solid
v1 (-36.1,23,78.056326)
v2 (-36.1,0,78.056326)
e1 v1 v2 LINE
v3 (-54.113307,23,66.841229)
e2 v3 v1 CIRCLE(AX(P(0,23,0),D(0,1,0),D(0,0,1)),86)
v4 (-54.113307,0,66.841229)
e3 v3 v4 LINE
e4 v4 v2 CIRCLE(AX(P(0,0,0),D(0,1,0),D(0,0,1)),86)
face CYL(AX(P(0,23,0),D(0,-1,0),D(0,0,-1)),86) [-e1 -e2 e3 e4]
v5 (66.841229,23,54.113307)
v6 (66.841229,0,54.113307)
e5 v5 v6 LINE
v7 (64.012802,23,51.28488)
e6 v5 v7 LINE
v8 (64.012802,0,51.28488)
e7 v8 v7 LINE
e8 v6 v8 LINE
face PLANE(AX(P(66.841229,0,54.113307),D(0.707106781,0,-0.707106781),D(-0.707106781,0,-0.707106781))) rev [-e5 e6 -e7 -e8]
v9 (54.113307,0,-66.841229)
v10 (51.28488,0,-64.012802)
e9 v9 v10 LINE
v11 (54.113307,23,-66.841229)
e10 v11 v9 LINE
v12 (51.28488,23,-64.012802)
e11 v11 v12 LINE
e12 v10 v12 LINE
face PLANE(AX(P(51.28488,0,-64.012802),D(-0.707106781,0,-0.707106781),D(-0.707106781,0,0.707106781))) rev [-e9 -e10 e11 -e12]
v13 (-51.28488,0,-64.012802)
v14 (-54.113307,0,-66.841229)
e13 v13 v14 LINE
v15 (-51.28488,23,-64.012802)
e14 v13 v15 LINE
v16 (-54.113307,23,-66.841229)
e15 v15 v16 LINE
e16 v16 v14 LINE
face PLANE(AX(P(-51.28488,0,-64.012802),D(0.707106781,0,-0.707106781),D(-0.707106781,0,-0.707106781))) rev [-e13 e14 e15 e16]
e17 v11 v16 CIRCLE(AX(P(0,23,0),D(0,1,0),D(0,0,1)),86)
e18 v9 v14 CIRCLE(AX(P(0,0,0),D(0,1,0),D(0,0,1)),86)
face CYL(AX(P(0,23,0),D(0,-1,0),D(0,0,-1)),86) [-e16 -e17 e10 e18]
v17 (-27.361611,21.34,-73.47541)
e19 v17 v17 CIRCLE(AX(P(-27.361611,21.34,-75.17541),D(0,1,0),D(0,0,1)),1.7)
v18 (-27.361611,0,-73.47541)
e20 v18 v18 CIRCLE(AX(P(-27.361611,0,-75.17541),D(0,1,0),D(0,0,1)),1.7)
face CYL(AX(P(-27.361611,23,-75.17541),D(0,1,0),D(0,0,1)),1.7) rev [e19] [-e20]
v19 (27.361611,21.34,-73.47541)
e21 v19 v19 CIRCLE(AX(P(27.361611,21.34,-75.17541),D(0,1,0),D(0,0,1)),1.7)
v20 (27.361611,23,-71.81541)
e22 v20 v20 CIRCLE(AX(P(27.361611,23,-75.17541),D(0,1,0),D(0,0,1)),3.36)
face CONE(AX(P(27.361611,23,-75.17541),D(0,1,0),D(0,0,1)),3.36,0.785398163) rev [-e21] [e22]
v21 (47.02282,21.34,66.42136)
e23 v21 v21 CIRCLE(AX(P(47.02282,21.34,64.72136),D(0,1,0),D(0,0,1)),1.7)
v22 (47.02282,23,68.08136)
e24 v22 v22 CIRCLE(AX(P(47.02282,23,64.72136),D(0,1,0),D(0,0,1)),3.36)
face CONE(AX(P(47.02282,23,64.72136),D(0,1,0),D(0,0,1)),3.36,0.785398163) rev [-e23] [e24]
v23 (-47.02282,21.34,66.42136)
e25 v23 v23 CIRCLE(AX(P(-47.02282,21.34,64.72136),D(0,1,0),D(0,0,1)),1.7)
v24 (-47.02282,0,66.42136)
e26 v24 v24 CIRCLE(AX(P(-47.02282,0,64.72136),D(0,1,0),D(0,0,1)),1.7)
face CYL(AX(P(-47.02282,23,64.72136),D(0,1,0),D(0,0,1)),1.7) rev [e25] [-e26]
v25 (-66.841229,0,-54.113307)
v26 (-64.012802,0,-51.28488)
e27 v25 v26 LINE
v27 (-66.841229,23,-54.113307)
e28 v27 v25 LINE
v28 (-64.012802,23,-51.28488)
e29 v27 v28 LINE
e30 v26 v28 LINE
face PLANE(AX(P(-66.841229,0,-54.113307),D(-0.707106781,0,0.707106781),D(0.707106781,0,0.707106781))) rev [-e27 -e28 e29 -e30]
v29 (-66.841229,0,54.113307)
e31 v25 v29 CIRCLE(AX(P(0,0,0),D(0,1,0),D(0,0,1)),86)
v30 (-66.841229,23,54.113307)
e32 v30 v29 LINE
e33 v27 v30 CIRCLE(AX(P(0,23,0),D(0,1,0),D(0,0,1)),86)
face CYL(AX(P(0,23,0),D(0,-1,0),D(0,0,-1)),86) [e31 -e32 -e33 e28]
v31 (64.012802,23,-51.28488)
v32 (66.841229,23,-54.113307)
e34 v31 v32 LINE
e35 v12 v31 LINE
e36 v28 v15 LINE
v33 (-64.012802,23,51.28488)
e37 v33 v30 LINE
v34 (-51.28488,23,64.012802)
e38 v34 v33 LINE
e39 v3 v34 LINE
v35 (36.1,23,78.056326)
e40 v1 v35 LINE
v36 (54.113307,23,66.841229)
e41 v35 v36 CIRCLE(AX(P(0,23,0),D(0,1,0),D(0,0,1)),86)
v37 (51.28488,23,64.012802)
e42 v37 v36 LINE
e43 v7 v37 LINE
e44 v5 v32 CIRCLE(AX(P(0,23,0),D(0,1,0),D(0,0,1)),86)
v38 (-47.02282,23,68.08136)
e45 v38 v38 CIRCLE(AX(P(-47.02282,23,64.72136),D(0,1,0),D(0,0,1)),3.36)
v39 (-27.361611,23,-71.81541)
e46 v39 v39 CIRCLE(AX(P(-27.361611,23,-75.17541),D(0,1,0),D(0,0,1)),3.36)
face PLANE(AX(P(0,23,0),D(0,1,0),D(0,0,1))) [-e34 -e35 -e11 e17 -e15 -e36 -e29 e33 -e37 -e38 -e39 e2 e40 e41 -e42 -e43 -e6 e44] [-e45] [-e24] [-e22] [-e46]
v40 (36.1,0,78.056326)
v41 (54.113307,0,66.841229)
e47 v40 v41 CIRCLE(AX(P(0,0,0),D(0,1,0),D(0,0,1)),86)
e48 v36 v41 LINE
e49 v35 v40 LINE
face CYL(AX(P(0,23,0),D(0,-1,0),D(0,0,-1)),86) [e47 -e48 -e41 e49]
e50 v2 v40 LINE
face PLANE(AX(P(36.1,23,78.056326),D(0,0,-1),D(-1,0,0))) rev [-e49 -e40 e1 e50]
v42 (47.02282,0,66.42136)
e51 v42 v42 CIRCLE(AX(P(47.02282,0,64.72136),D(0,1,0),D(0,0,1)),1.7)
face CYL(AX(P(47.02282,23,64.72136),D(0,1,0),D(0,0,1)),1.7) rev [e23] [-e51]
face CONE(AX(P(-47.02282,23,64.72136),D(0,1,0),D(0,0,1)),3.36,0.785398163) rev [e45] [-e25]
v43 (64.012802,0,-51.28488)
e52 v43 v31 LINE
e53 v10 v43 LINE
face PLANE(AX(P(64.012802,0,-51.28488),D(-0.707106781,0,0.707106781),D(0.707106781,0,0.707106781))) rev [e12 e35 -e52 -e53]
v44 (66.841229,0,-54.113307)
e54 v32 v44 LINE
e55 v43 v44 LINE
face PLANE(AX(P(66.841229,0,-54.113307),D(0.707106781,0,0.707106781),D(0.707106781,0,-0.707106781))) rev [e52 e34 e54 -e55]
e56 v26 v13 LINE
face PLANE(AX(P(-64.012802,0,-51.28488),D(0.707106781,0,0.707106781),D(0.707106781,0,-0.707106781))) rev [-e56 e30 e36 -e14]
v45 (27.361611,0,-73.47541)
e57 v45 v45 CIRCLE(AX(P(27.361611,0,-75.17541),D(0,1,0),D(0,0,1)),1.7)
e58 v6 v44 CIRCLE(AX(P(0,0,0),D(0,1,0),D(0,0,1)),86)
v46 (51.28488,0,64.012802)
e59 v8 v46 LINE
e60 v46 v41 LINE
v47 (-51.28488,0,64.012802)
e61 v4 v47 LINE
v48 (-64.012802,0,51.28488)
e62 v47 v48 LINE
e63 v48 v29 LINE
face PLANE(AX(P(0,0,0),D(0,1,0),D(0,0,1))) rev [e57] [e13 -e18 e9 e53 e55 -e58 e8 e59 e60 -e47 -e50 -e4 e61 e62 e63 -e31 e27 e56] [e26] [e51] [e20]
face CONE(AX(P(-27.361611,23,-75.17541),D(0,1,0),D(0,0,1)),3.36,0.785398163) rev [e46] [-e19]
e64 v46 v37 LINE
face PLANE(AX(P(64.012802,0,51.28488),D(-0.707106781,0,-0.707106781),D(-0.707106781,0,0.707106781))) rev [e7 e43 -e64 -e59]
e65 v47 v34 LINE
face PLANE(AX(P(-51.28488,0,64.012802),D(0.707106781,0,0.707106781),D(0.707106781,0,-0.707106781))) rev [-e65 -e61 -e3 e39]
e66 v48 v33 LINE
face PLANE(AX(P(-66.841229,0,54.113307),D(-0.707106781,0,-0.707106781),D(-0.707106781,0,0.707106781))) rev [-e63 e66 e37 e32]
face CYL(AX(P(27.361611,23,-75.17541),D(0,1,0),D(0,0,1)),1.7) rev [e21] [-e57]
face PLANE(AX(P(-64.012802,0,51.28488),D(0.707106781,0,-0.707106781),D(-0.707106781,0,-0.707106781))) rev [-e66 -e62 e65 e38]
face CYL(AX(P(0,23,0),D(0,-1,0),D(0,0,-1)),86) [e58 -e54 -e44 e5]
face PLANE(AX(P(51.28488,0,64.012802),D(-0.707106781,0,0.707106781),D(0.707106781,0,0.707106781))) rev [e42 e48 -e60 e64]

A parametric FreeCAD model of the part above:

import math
import FreeCAD as App
import Part
import Sketcher

V = App.Vector
Q = App.Units.Quantity

doc = App.newDocument("Part")
body = doc.addObject("PartDesign::Body", "Body")

sketch1 = doc.addObject("Sketcher::SketchObject", "Sketch")
body.addObject(sketch1)
sketch1.AttachmentSupport = (doc.XZ_Plane, [""])
sketch1.MapMode = "FlatFace"
sketch1.addGeometry(Part.LineSegment(V(-36, 78, 0), V(36, 78, 0)), False)
sketch1.addGeometry(Part.ArcOfCircle(Part.Circle(V(0, 0, 0), V(0, 0, 1), 86), math.radians(51.01), math.radians(65.18)), False)
sketch1.addGeometry(Part.LineSegment(V(54, 67, 0), V(67, 54, 0)), False)
sketch1.addGeometry(Part.ArcOfCircle(Part.Circle(V(0, 0, 0), V(0, 0, 1), 86), math.radians(-39), math.radians(39)), False)
sketch1.addGeometry(Part.LineSegment(V(67, -54, 0), V(54, -67, 0)), False)
sketch1.addGeometry(Part.ArcOfCircle(Part.Circle(V(0, 0, 0), V(0, 0, 1), 86), math.radians(-129), math.radians(-51)), False)
sketch1.addGeometry(Part.LineSegment(V(-54, -67, 0), V(-67, -54, 0)), False)
sketch1.addGeometry(Part.ArcOfCircle(Part.Circle(V(0, 0, 0), V(0, 0, 1), 86), math.radians(141), math.radians(219)), False)
sketch1.addGeometry(Part.LineSegment(V(-67, 54, 0), V(-54, 67, 0)), False)
sketch1.addGeometry(Part.ArcOfCircle(Part.Circle(V(0, 0, 0), V(0, 0, 1), 86), math.radians(114.82), math.radians(128.99)), False)
sketch1.addConstraint(Sketcher.Constraint("Coincident", 0, 2, 1, 2))
sketch1.addConstraint(Sketcher.Constraint("Coincident", 1, 1, 2, 1))
sketch1.addConstraint(Sketcher.Constraint("Coincident", 2, 2, 3, 2))
sketch1.addConstraint(Sketcher.Constraint("Coincident", 3, 1, 4, 1))
sketch1.addConstraint(Sketcher.Constraint("Coincident", 4, 2, 5, 2))
sketch1.addConstraint(Sketcher.Constraint("Coincident", 5, 1, 6, 1))
sketch1.addConstraint(Sketcher.Constraint("Coincident", 6, 2, 7, 2))
sketch1.addConstraint(Sketcher.Constraint("Coincident", 7, 1, 8, 1))
sketch1.addConstraint(Sketcher.Constraint("Coincident", 8, 2, 9, 2))
sketch1.addConstraint(Sketcher.Constraint("Coincident", 9, 1, 0, 1))
sketch1.addConstraint(Sketcher.Constraint("Horizontal", 0))
sketch1.addConstraint(Sketcher.Constraint("Coincident", 1, 3, -1, 1))
sketch1.addConstraint(Sketcher.Constraint("Coincident", 3, 3, -1, 1))
sketch1.addConstraint(Sketcher.Constraint("Coincident", 5, 3, -1, 1))
sketch1.addConstraint(Sketcher.Constraint("Coincident", 7, 3, -1, 1))
sketch1.addConstraint(Sketcher.Constraint("Coincident", 9, 3, -1, 1))
sketch1.addConstraint(Sketcher.Constraint("Equal", 1, 3))
sketch1.addConstraint(Sketcher.Constraint("Equal", 3, 5))
sketch1.addConstraint(Sketcher.Constraint("Equal", 5, 7))
sketch1.addConstraint(Sketcher.Constraint("Equal", 7, 9))
sketch1.addConstraint(Sketcher.Constraint("Perpendicular", 2, 4))
sketch1.addConstraint(Sketcher.Constraint("Perpendicular", 4, 6))
sketch1.addConstraint(Sketcher.Constraint("Perpendicular", 6, 8))
sketch1.addConstraint(Sketcher.Constraint("Horizontal", 4, 2, 5, 1))
sketch1.addConstraint(Sketcher.Constraint("Horizontal", 3, 1, 6, 2))
sketch1.addConstraint(Sketcher.Constraint("Horizontal", 2, 2, 7, 1))
sketch1.addConstraint(Sketcher.Constraint("Vertical", 2, 2, 3, 1))
sketch1.addConstraint(Sketcher.Constraint("Radius", 1, Q("86 mm")))
sketch1.addConstraint(Sketcher.Constraint("Distance", 2, Q("18 mm")))
sketch1.addConstraint(Sketcher.Constraint("DistanceX", 0, 1, 0, 2, Q("72.2 mm")))
pad1 = doc.addObject("PartDesign::Pad", "Pad")
body.addObject(pad1)
pad1.Profile = sketch1
pad1.Length = 23
pad1.Reversed = True

sketch2 = doc.addObject("Sketcher::SketchObject", "Sketch001")
body.addObject(sketch2)
sketch2.AttachmentSupport = (doc.XZ_Plane, [""])
sketch2.MapMode = "FlatFace"
sketch2.AttachmentOffset = App.Placement(V(0, 0, -23), App.Rotation())
sketch2.addGeometry(Part.Circle(V(47, 64.7, 0), V(0, 0, 1), 1.7), False)
sketch2.addGeometry(Part.Circle(V(27.4, -75.2, 0), V(0, 0, 1), 1.7), False)
sketch2.addGeometry(Part.Circle(V(-47, 64.7, 0), V(0, 0, 1), 1.7), False)
sketch2.addGeometry(Part.Circle(V(-27.4, -75.2, 0), V(0, 0, 1), 1.7), False)
sketch2.addConstraint(Sketcher.Constraint("Equal", 0, 1))
sketch2.addConstraint(Sketcher.Constraint("Equal", 1, 2))
sketch2.addConstraint(Sketcher.Constraint("Equal", 2, 3))
sketch2.addConstraint(Sketcher.Constraint("Symmetric", 0, 3, 2, 3, -2))
sketch2.addConstraint(Sketcher.Constraint("Symmetric", 1, 3, 3, 3, -2))
sketch2.addConstraint(Sketcher.Constraint("Diameter", 0, Q("3.4 mm")))
sketch2.addConstraint(Sketcher.Constraint("DistanceX", -1, 1, 0, 3, Q("47.02282 mm")))
sketch2.addConstraint(Sketcher.Constraint("DistanceY", -1, 1, 0, 3, Q("64.72136 mm")))
sketch2.addConstraint(Sketcher.Constraint("DistanceX", -1, 1, 1, 3, Q("27.361611 mm")))
sketch2.addConstraint(Sketcher.Constraint("DistanceY", 1, 3, -1, 1, Q("75.17541 mm")))
doc.recompute()
hole = doc.addObject("PartDesign::Hole", "Hole")
body.addObject(hole)
hole.Profile = sketch2
hole.ThreadType = "None"
hole.Diameter = 3.4
hole.DepthType = "ThroughAll"
hole.HoleCutType = "Countersink"
hole.HoleCutDiameter = 6.72
hole.HoleCutCountersinkAngle = 90
hole.Reversed = True

sketch3 = doc.addObject("Sketcher::SketchObject", "Sketch002")
body.addObject(sketch3)
sketch3.AttachmentSupport = (doc.XZ_Plane, [""])
sketch3.MapMode = "FlatFace"
sketch3.AttachmentOffset = App.Placement(V(0, 0, -23), App.Rotation())
sketch3.addGeometry(Part.LineSegment(V(-64, 51.3, 0), V(-66.8, 54.1, 0)), False)
sketch3.addGeometry(Part.LineSegment(V(-66.8, 54.1, 0), V(-54.1, 66.8, 0)), False)
sketch3.addGeometry(Part.LineSegment(V(-54.1, 66.8, 0), V(-51.3, 64, 0)), False)
sketch3.addGeometry(Part.LineSegment(V(-51.3, 64, 0), V(-64, 51.3, 0)), False)
sketch3.addGeometry(Part.LineSegment(V(-66.8, -54.1, 0), V(-64, -51.3, 0)), False)
sketch3.addGeometry(Part.LineSegment(V(-64, -51.3, 0), V(-51.3, -64, 0)), False)
sketch3.addGeometry(Part.LineSegment(V(-51.3, -64, 0), V(-54.1, -66.8, 0)), False)
sketch3.addGeometry(Part.LineSegment(V(-54.1, -66.8, 0), V(-66.8, -54.1, 0)), False)
sketch3.addGeometry(Part.LineSegment(V(66.8, 54.1, 0), V(64, 51.3, 0)), False)
sketch3.addGeometry(Part.LineSegment(V(64, 51.3, 0), V(51.3, 64, 0)), False)
sketch3.addGeometry(Part.LineSegment(V(51.3, 64, 0), V(54.1, 66.8, 0)), False)
sketch3.addGeometry(Part.LineSegment(V(54.1, 66.8, 0), V(66.8, 54.1, 0)), False)
sketch3.addGeometry(Part.LineSegment(V(66.8, -54.1, 0), V(54.1, -66.8, 0)), False)
sketch3.addGeometry(Part.LineSegment(V(54.1, -66.8, 0), V(51.3, -64, 0)), False)
sketch3.addGeometry(Part.LineSegment(V(51.3, -64, 0), V(64, -51.3, 0)), False)
sketch3.addGeometry(Part.LineSegment(V(64, -51.3, 0), V(66.8, -54.1, 0)), False)
sketch3.addConstraint(Sketcher.Constraint("Coincident", 0, 2, 1, 1))
sketch3.addConstraint(Sketcher.Constraint("Coincident", 1, 2, 2, 1))
sketch3.addConstraint(Sketcher.Constraint("Coincident", 2, 2, 3, 1))
sketch3.addConstraint(Sketcher.Constraint("Coincident", 3, 2, 0, 1))
sketch3.addConstraint(Sketcher.Constraint("Coincident", 4, 2, 5, 1))
sketch3.addConstraint(Sketcher.Constraint("Coincident", 5, 2, 6, 1))
sketch3.addConstraint(Sketcher.Constraint("Coincident", 6, 2, 7, 1))
sketch3.addConstraint(Sketcher.Constraint("Coincident", 7, 2, 4, 1))
sketch3.addConstraint(Sketcher.Constraint("Coincident", 8, 2, 9, 1))
sketch3.addConstraint(Sketcher.Constraint("Coincident", 9, 2, 10, 1))
sketch3.addConstraint(Sketcher.Constraint("Coincident", 10, 2, 11, 1))
sketch3.addConstraint(Sketcher.Constraint("Coincident", 11, 2, 8, 1))
sketch3.addConstraint(Sketcher.Constraint("Coincident", 12, 2, 13, 1))
sketch3.addConstraint(Sketcher.Constraint("Coincident", 13, 2, 14, 1))
sketch3.addConstraint(Sketcher.Constraint("Coincident", 14, 2, 15, 1))
sketch3.addConstraint(Sketcher.Constraint("Coincident", 15, 2, 12, 1))
sketch3.addConstraint(Sketcher.Constraint("Symmetric", 4, 2, 8, 2, -1, 1))
sketch3.addConstraint(Sketcher.Constraint("Symmetric", 5, 2, 9, 2, -1, 1))
sketch3.addConstraint(Sketcher.Constraint("Symmetric", 6, 2, 10, 2, -1, 1))
sketch3.addConstraint(Sketcher.Constraint("Symmetric", 7, 2, 11, 2, -1, 1))
sketch3.addConstraint(Sketcher.Constraint("Symmetric", 1, 2, 12, 2, -1, 1))
sketch3.addConstraint(Sketcher.Constraint("Symmetric", 2, 2, 13, 2, -1, 1))
sketch3.addConstraint(Sketcher.Constraint("Symmetric", 3, 2, 14, 2, -1, 1))
sketch3.addConstraint(Sketcher.Constraint("Symmetric", 0, 2, 15, 2, -1, 1))
sketch3.addConstraint(Sketcher.Constraint("Symmetric", 3, 2, 8, 2, -2))
sketch3.addConstraint(Sketcher.Constraint("Symmetric", 2, 2, 9, 2, -2))
sketch3.addConstraint(Sketcher.Constraint("Symmetric", 1, 2, 10, 2, -2))
sketch3.addConstraint(Sketcher.Constraint("Symmetric", 0, 2, 11, 2, -2))
sketch3.addConstraint(Sketcher.Constraint("Perpendicular", 0, 1))
sketch3.addConstraint(Sketcher.Constraint("Perpendicular", 1, 2))
sketch3.addConstraint(Sketcher.Constraint("Perpendicular", 2, 3))
sketch3.addConstraint(Sketcher.Constraint("Parallel", 3, 4))
sketch3.addConstraint(Sketcher.Constraint("Distance", 0, Q("4 mm")))
sketch3.addConstraint(Sketcher.Constraint("Distance", 1, Q("18 mm")))
sketch3.addConstraint(Sketcher.Constraint("DistanceX", 0, 2, -1, 1, Q("66.841229 mm")))
sketch3.addConstraint(Sketcher.Constraint("DistanceY", -1, 1, 1, 2, Q("66.841229 mm")))
pocket1 = doc.addObject("PartDesign::Pocket", "Pocket")
body.addObject(pocket1)
pocket1.Profile = sketch3
pocket1.Type = "ThroughAll"
pocket1.Reversed = True

doc.recompute()
